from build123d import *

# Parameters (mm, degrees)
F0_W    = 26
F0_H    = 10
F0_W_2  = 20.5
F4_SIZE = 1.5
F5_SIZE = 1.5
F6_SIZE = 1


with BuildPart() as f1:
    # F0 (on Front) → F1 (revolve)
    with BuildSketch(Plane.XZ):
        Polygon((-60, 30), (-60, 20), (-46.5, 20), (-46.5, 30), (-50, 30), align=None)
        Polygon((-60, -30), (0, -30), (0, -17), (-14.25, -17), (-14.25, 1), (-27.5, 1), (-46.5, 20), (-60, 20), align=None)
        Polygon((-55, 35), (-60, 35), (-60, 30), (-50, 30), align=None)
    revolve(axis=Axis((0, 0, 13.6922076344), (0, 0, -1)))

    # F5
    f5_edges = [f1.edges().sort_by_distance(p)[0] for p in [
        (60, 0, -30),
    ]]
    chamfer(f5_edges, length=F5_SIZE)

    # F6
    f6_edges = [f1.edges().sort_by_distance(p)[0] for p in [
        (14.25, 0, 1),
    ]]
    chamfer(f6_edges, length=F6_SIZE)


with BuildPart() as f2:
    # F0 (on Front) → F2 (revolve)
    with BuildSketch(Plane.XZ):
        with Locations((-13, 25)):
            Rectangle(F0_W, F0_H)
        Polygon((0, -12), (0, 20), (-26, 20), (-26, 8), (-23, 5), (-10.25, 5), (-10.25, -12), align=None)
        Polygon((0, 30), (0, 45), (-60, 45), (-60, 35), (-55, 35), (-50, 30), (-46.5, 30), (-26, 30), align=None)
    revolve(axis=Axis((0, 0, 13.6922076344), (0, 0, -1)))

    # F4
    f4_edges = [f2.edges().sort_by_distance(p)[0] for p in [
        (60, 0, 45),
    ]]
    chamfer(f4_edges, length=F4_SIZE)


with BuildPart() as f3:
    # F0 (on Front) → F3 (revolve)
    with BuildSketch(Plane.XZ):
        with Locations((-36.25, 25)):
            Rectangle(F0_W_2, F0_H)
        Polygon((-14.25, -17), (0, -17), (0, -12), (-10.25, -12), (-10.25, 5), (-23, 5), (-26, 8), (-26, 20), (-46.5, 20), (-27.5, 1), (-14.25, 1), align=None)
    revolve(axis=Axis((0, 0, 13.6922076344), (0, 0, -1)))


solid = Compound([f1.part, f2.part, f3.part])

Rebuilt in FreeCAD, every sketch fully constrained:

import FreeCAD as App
import Part
import Sketcher
from FreeCAD import Vector
Q = App.Units.Quantity


def edges_at(feature, points):
    """Names of the edges that pass closest to the given points."""
    edges = feature.Shape.Edges
    near = lambda p: min(range(len(edges)), key=lambda i: edges[i].distToShape(Part.Vertex(*p))[0])
    return sorted({f"Edge{near(p) + 1}" for p in points})


def add_polygon(sketch, points):
    """Adds a closed chain of lines whose ends are joined by coincident constraints."""
    first, n = sketch.GeometryCount, len(points)
    for a, b in zip(points, points[1:] + points[:1]):
        sketch.addGeometry(Part.LineSegment(App.Vector(*a, 0), App.Vector(*b, 0)), False)
    for i in range(n):
        sketch.addConstraint(Sketcher.Constraint("Coincident", first + i, 2, first + (i + 1) % n, 1))

doc = App.newDocument("Part")
body = doc.addObject("PartDesign::Body", "Body")

# Sketch on XZ plane
sketch1 = body.newObject("Sketcher::SketchObject", "Sketch")
sketch1.AttachmentSupport = (doc.getObject("XZ_Plane"), [""])
sketch1.MapMode = "FlatFace"
add_polygon(sketch1, [(-60, -30), (0, -30), (0, -17), (-14.2, -17), (-14.2, 1), (-27.5, 1), (-46.5, 20), (-46.5, 30), (-50, 30), (-55, 35), (-60, 35)])  # lines 0-10
sketch1.addConstraint(Sketcher.Constraint("Horizontal", 0))
sketch1.addConstraint(Sketcher.Constraint("Vertical", 1))
sketch1.addConstraint(Sketcher.Constraint("Horizontal", 2))
sketch1.addConstraint(Sketcher.Constraint("Vertical", 3))
sketch1.addConstraint(Sketcher.Constraint("Horizontal", 4))
sketch1.addConstraint(Sketcher.Constraint("Vertical", 6))
sketch1.addConstraint(Sketcher.Constraint("Horizontal", 7))
sketch1.addConstraint(Sketcher.Constraint("Horizontal", 9))
sketch1.addConstraint(Sketcher.Constraint("Vertical", 10))
sketch1.addConstraint(Sketcher.Constraint("PointOnObject", 0, 2, -2))
sketch1.addConstraint(Sketcher.Constraint("Parallel", 5, 8))
sketch1.addConstraint(Sketcher.Constraint("DistanceX", 0, 1, 0, 2, Q("60 mm")))
sketch1.addConstraint(Sketcher.Constraint("DistanceX", 9, 2, 9, 1, Q("5 mm")))
sketch1.addConstraint(Sketcher.Constraint("DistanceY", 1, 1, 1, 2, Q("13 mm")))
sketch1.addConstraint(Sketcher.Constraint("DistanceY", 3, 1, 3, 2, Q("18 mm")))
sketch1.addConstraint(Sketcher.Constraint("DistanceY", 6, 1, 6, 2, Q("10 mm")))
sketch1.addConstraint(Sketcher.Constraint("DistanceY", 10, 2, 10, 1, Q("65 mm")))
sketch1.addConstraint(Sketcher.Constraint("Angle", 5, Q("135 deg")))
sketch1.addConstraint(Sketcher.Constraint("DistanceX", 7, 2, 7, 1, Q("3.5 mm")))
sketch1.addConstraint(Sketcher.Constraint("DistanceY", 0, 2, -1, 1, Q("30 mm")))
sketch1.addConstraint(Sketcher.Constraint("DistanceY", -1, 1, 5, 2, Q("20 mm")))
sketch1.addConstraint(Sketcher.Constraint("DistanceX", 2, 2, 2, 1, Q("14.25 mm")))
revolution = body.newObject("PartDesign::Revolution", "Revolution")
revolution.Profile = sketch1
revolution.ReferenceAxis = (sketch1, ["V_Axis"])
revolution.Angle = 360
doc.recompute()

chamfer = body.newObject("PartDesign::Chamfer", "Chamfer")
chamfer.Base = (revolution, edges_at(revolution, [(60, 0, -30)]))
chamfer.Size = 1.5
doc.recompute()

chamfer2 = body.newObject("PartDesign::Chamfer", "Chamfer001")
chamfer2.Base = (chamfer, edges_at(chamfer, [(14.25, 0, 1)]))
chamfer2.Size = 1
body2 = doc.addObject("PartDesign::Body", "Body001")

# Sketch on XZ plane
sketch2 = body2.newObject("Sketcher::SketchObject", "Sketch001")
sketch2.AttachmentSupport = (doc.getObject("XZ_Plane001"), [""])
sketch2.MapMode = "FlatFace"
add_polygon(sketch2, [(-26, 30), (-26, 8), (-23, 5), (-10.2, 5), (-10.2, -12), (0, -12), (0, 45), (-60, 45), (-60, 35), (-55, 35), (-50, 30)])  # lines 0-10
sketch2.addConstraint(Sketcher.Constraint("Vertical", 0))
sketch2.addConstraint(Sketcher.Constraint("Horizontal", 2))
sketch2.addConstraint(Sketcher.Constraint("Vertical", 3))
sketch2.addConstraint(Sketcher.Constraint("Horizontal", 4))
sketch2.addConstraint(Sketcher.Constraint("Vertical", 5))
sketch2.addConstraint(Sketcher.Constraint("Horizontal", 6))
sketch2.addConstraint(Sketcher.Constraint("Vertical", 7))
sketch2.addConstraint(Sketcher.Constraint("Horizontal", 8))
sketch2.addConstraint(Sketcher.Constraint("Horizontal", 10))
sketch2.addConstraint(Sketcher.Constraint("PointOnObject", 4, 2, -2))
sketch2.addConstraint(Sketcher.Constraint("Parallel", 1, 9))
sketch2.addConstraint(Sketcher.Constraint("DistanceX", 6, 2, 6, 1, Q("60 mm")))
sketch2.addConstraint(Sketcher.Constraint("DistanceX", 8, 1, 8, 2, Q("5 mm")))
sketch2.addConstraint(Sketcher.Constraint("DistanceX", 10, 1, 10, 2, Q("24 mm")))
sketch2.addConstraint(Sketcher.Constraint("DistanceY", 0, 2, 0, 1, Q("22 mm")))
sketch2.addConstraint(Sketcher.Constraint("DistanceY", 3, 2, 3, 1, Q("17 mm")))
sketch2.addConstraint(Sketcher.Constraint("DistanceY", 5, 1, 5, 2, Q("57 mm")))
sketch2.addConstraint(Sketcher.Constraint("DistanceY", 7, 2, 7, 1, Q("10 mm")))
sketch2.addConstraint(Sketcher.Constraint("Angle", 1, Q("-45 deg")))
sketch2.addConstraint(Sketcher.Constraint("DistanceX", 0, 2, -1, 1, Q("26 mm")))
sketch2.addConstraint(Sketcher.Constraint("DistanceY", -1, 1, 0, 2, Q("8 mm")))
sketch2.addConstraint(Sketcher.Constraint("DistanceX", 2, 1, 2, 2, Q("12.75 mm")))
revolution2 = body2.newObject("PartDesign::Revolution", "Revolution001")
revolution2.Profile = sketch2
revolution2.ReferenceAxis = (sketch2, ["V_Axis"])
revolution2.Angle = 360
doc.recompute()

chamfer3 = body2.newObject("PartDesign::Chamfer", "Chamfer002")
chamfer3.Base = (revolution2, edges_at(revolution2, [(60, 0, 45)]))
chamfer3.Size = 1.5
body3 = doc.addObject("PartDesign::Body", "Body002")

# Sketch on XZ plane
sketch3 = body3.newObject("Sketcher::SketchObject", "Sketch002")
sketch3.AttachmentSupport = (doc.getObject("XZ_Plane002"), [""])
sketch3.MapMode = "FlatFace"
add_polygon(sketch3, [(-46.5, 30), (-46.5, 20), (-27.5, 1), (-14.2, 1), (-14.2, -17), (0, -17), (0, -12), (-10.2, -12), (-10.2, 5), (-23, 5), (-26, 8), (-26, 30)])  # lines 0-11
sketch3.addConstraint(Sketcher.Constraint("Vertical", 0))
sketch3.addConstraint(Sketcher.Constraint("Horizontal", 2))
sketch3.addConstraint(Sketcher.Constraint("Vertical", 3))
sketch3.addConstraint(Sketcher.Constraint("Horizontal", 4))
sketch3.addConstraint(Sketcher.Constraint("Vertical", 5))
sketch3.addConstraint(Sketcher.Constraint("Horizontal", 6))
sketch3.addConstraint(Sketcher.Constraint("Vertical", 7))
sketch3.addConstraint(Sketcher.Constraint("Horizontal", 8))
sketch3.addConstraint(Sketcher.Constraint("Vertical", 10))
sketch3.addConstraint(Sketcher.Constraint("Horizontal", 11))
sketch3.addConstraint(Sketcher.Constraint("PointOnObject", 4, 2, -2))
sketch3.addConstraint(Sketcher.Constraint("Parallel", 1, 9))
sketch3.addConstraint(Sketcher.Constraint("DistanceY", 0, 2, 0, 1, Q("10 mm")))
sketch3.addConstraint(Sketcher.Constraint("DistanceY", 3, 2, 3, 1, Q("18 mm")))
sketch3.addConstraint(Sketcher.Constraint("DistanceY", 5, 1, 5, 2, Q("5 mm")))
sketch3.addConstraint(Sketcher.Constraint("DistanceY", 7, 1, 7, 2, Q("17 mm")))
sketch3.addConstraint(Sketcher.Constraint("DistanceY", 10, 1, 10, 2, Q("22 mm")))
sketch3.addConstraint(Sketcher.Constraint("Angle", 1, Q("-45 deg")))
sketch3.addConstraint(Sketcher.Constraint("DistanceX", 11, 2, 11, 1, Q("20.5 mm")))
sketch3.addConstraint(Sketcher.Constraint("DistanceY", -1, 1, 0, 2, Q("20 mm")))
sketch3.addConstraint(Sketcher.Constraint("DistanceY", -1, 1, 1, 2, Q("1 mm")))
sketch3.addConstraint(Sketcher.Constraint("DistanceX", 8, 2, -1, 1, Q("23 mm")))
sketch3.addConstraint(Sketcher.Constraint("DistanceX", 3, 2, 6, 2, Q("4 mm")))
sketch3.addConstraint(Sketcher.Constraint("DistanceX", 2, 1, 2, 2, Q("13.25 mm")))
revolution3 = body3.newObject("PartDesign::Revolution", "Revolution002")
revolution3.Profile = sketch3
revolution3.ReferenceAxis = (sketch3, ["V_Axis"])
revolution3.Angle = 360

doc.recompute()
